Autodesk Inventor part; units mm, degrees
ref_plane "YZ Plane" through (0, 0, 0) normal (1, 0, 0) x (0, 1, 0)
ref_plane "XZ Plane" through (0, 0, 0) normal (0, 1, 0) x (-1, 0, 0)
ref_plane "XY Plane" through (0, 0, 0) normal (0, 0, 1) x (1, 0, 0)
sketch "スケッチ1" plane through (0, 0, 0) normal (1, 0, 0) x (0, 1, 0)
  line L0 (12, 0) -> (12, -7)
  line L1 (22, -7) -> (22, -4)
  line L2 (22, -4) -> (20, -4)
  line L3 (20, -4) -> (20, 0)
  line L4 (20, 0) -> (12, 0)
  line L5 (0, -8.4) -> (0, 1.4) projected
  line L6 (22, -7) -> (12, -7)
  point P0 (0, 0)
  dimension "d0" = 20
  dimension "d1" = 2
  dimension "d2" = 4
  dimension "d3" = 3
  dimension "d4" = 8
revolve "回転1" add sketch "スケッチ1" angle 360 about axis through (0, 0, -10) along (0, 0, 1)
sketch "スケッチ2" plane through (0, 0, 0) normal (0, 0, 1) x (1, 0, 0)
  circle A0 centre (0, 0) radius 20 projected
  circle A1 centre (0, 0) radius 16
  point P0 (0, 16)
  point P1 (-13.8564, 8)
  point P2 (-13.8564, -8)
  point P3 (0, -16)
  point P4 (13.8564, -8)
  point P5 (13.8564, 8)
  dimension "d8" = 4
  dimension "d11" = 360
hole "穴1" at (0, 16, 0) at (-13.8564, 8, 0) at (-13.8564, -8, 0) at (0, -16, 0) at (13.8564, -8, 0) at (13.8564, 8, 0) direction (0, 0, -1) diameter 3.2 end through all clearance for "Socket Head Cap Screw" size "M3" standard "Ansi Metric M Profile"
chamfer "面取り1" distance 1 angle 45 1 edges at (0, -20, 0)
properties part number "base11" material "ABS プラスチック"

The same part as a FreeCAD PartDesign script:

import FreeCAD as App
import Part
import Sketcher

V = App.Vector


def edges_at(feature, points):
    """Names of the edges that pass closest to the given points."""
    edges = feature.Shape.Edges
    near = lambda p: min(range(len(edges)), key=lambda i: edges[i].distToShape(Part.Vertex(*p))[0])
    return sorted({f"Edge{near(p) + 1}" for p in points})


def add_polygon(sketch, points):
    """Adds a closed chain of lines whose ends are joined by coincident constraints."""
    first, n = sketch.GeometryCount, len(points)
    for a, b in zip(points, points[1:] + points[:1]):
        sketch.addGeometry(Part.LineSegment(App.Vector(*a, 0), App.Vector(*b, 0)), False)
    for i in range(n):
        sketch.addConstraint(Sketcher.Constraint("Coincident", first + i, 2, first + (i + 1) % n, 1))

doc = App.newDocument("Part")
params = doc.addObject("Spreadsheet::Sheet", "Params")
for row, (alias, value) in enumerate([
    ("sketch1_width", "8 mm"),
    ("sketch1_width2", "2 mm"),
    ("sketch1_height", "3 mm"),
    ("sketch1_height2", "4 mm"),
    ("revolution_angle", "360 deg"),
    ("sketch2_diameter", "3.2 mm"),
    ("hole_diameter", "3.2 mm"),
    ("chamfer_size", "1 mm"),
], start=1):
    params.set(f"A{row}", alias)
    params.set(f"B{row}", "=" + value)
    params.setAlias(f"B{row}", alias)

body = doc.addObject("PartDesign::Body", "Body")

sketch1 = doc.addObject("Sketcher::SketchObject", "Sketch")
body.addObject(sketch1)
sketch1.AttachmentSupport = (doc.YZ_Plane, [""])
sketch1.MapMode = "FlatFace"
add_polygon(sketch1, [(20, 0), (12, 0), (12, -7), (22, -7), (22, -4), (20, -4)])
sketch1.addConstraint([
    Sketcher.Constraint("Horizontal", 0),
    Sketcher.Constraint("Vertical", 1),
    Sketcher.Constraint("Horizontal", 2),
    Sketcher.Constraint("Vertical", 3),
    Sketcher.Constraint("Horizontal", 4),
    Sketcher.Constraint("Vertical", 5),
    Sketcher.Constraint("PointOnObject", 0, 2, -1),
    Sketcher.Constraint("DistanceX", 0, 2, 0, 1, 8.0),
    Sketcher.Constraint("DistanceX", 4, 2, 4, 1, 2.0),
    Sketcher.Constraint("DistanceY", 3, 1, 3, 2, 3.0),
    Sketcher.Constraint("DistanceY", 5, 1, 5, 2, 4.0),
    Sketcher.Constraint("DistanceX", -1, 1, 4, 2, 20.0),
])
sketch1.setExpression("Constraints[13]", "Params.sketch1_width")
sketch1.setExpression("Constraints[14]", "Params.sketch1_width2")
sketch1.setExpression("Constraints[15]", "Params.sketch1_height")
sketch1.setExpression("Constraints[16]", "Params.sketch1_height2")
revolution = doc.addObject("PartDesign::Revolution", "Revolution")
body.addObject(revolution)
revolution.Profile = sketch1
revolution.ReferenceAxis = (sketch1, ["V_Axis"])
revolution.setExpression("Angle", "Params.revolution_angle")

sketch2 = doc.addObject("Sketcher::SketchObject", "Sketch001")
body.addObject(sketch2)
sketch2.AttachmentSupport = (doc.XY_Plane, [""])
sketch2.MapMode = "FlatFace"
sketch2.addGeometry([
    Part.Circle(V(0, 16, 0), V(0, 0, 1), 1.6),
    Part.Circle(V(-13.8564, 8, 0), V(0, 0, 1), 1.6),
    Part.Circle(V(-13.8564, -8, 0), V(0, 0, 1), 1.6),
    Part.Circle(V(0, -16, 0), V(0, 0, 1), 1.6),
    Part.Circle(V(13.8564, -8, 0), V(0, 0, 1), 1.6),
    Part.Circle(V(13.8564, 8, 0), V(0, 0, 1), 1.6),
], False)
sketch2.addConstraint([
    Sketcher.Constraint("Equal", 0, 1),
    Sketcher.Constraint("Equal", 1, 2),
    Sketcher.Constraint("Equal", 2, 3),
    Sketcher.Constraint("Equal", 3, 4),
    Sketcher.Constraint("Equal", 4, 5),
    Sketcher.Constraint("Symmetric", 0, 3, 3, 3, -1, 1),
    Sketcher.Constraint("Symmetric", 1, 3, 4, 3, -1, 1),
    Sketcher.Constraint("Symmetric", 2, 3, 5, 3, -1, 1),
    Sketcher.Constraint("Symmetric", 2, 3, 4, 3, -2),
    Sketcher.Constraint("PointOnObject", 0, 3, -2),
    Sketcher.Constraint("Diameter", 0, 3.2),
    Sketcher.Constraint("DistanceY", -1, 1, 0, 3, 16.0),
    Sketcher.Constraint("DistanceY", -1, 1, 1, 3, 8.0),
    Sketcher.Constraint("DistanceX", 1, 3, -1, 1, 13.8564),
])
sketch2.setExpression("Constraints[10]", "Params.sketch2_diameter")
doc.recompute()
hole = doc.addObject("PartDesign::Hole", "Hole")
body.addObject(hole)
hole.Profile = sketch2
hole.ThreadType = "None"
hole.setExpression("Diameter", "Params.hole_diameter")
hole.DepthType = "ThroughAll"
doc.recompute()

chamfer = doc.addObject("PartDesign::Chamfer", "Chamfer")
body.addObject(chamfer)
chamfer.Base = (hole, edges_at(hole, [(0, -20, 0)]))
chamfer.setExpression("Size", "Params.chamfer_size")

doc.recompute()
